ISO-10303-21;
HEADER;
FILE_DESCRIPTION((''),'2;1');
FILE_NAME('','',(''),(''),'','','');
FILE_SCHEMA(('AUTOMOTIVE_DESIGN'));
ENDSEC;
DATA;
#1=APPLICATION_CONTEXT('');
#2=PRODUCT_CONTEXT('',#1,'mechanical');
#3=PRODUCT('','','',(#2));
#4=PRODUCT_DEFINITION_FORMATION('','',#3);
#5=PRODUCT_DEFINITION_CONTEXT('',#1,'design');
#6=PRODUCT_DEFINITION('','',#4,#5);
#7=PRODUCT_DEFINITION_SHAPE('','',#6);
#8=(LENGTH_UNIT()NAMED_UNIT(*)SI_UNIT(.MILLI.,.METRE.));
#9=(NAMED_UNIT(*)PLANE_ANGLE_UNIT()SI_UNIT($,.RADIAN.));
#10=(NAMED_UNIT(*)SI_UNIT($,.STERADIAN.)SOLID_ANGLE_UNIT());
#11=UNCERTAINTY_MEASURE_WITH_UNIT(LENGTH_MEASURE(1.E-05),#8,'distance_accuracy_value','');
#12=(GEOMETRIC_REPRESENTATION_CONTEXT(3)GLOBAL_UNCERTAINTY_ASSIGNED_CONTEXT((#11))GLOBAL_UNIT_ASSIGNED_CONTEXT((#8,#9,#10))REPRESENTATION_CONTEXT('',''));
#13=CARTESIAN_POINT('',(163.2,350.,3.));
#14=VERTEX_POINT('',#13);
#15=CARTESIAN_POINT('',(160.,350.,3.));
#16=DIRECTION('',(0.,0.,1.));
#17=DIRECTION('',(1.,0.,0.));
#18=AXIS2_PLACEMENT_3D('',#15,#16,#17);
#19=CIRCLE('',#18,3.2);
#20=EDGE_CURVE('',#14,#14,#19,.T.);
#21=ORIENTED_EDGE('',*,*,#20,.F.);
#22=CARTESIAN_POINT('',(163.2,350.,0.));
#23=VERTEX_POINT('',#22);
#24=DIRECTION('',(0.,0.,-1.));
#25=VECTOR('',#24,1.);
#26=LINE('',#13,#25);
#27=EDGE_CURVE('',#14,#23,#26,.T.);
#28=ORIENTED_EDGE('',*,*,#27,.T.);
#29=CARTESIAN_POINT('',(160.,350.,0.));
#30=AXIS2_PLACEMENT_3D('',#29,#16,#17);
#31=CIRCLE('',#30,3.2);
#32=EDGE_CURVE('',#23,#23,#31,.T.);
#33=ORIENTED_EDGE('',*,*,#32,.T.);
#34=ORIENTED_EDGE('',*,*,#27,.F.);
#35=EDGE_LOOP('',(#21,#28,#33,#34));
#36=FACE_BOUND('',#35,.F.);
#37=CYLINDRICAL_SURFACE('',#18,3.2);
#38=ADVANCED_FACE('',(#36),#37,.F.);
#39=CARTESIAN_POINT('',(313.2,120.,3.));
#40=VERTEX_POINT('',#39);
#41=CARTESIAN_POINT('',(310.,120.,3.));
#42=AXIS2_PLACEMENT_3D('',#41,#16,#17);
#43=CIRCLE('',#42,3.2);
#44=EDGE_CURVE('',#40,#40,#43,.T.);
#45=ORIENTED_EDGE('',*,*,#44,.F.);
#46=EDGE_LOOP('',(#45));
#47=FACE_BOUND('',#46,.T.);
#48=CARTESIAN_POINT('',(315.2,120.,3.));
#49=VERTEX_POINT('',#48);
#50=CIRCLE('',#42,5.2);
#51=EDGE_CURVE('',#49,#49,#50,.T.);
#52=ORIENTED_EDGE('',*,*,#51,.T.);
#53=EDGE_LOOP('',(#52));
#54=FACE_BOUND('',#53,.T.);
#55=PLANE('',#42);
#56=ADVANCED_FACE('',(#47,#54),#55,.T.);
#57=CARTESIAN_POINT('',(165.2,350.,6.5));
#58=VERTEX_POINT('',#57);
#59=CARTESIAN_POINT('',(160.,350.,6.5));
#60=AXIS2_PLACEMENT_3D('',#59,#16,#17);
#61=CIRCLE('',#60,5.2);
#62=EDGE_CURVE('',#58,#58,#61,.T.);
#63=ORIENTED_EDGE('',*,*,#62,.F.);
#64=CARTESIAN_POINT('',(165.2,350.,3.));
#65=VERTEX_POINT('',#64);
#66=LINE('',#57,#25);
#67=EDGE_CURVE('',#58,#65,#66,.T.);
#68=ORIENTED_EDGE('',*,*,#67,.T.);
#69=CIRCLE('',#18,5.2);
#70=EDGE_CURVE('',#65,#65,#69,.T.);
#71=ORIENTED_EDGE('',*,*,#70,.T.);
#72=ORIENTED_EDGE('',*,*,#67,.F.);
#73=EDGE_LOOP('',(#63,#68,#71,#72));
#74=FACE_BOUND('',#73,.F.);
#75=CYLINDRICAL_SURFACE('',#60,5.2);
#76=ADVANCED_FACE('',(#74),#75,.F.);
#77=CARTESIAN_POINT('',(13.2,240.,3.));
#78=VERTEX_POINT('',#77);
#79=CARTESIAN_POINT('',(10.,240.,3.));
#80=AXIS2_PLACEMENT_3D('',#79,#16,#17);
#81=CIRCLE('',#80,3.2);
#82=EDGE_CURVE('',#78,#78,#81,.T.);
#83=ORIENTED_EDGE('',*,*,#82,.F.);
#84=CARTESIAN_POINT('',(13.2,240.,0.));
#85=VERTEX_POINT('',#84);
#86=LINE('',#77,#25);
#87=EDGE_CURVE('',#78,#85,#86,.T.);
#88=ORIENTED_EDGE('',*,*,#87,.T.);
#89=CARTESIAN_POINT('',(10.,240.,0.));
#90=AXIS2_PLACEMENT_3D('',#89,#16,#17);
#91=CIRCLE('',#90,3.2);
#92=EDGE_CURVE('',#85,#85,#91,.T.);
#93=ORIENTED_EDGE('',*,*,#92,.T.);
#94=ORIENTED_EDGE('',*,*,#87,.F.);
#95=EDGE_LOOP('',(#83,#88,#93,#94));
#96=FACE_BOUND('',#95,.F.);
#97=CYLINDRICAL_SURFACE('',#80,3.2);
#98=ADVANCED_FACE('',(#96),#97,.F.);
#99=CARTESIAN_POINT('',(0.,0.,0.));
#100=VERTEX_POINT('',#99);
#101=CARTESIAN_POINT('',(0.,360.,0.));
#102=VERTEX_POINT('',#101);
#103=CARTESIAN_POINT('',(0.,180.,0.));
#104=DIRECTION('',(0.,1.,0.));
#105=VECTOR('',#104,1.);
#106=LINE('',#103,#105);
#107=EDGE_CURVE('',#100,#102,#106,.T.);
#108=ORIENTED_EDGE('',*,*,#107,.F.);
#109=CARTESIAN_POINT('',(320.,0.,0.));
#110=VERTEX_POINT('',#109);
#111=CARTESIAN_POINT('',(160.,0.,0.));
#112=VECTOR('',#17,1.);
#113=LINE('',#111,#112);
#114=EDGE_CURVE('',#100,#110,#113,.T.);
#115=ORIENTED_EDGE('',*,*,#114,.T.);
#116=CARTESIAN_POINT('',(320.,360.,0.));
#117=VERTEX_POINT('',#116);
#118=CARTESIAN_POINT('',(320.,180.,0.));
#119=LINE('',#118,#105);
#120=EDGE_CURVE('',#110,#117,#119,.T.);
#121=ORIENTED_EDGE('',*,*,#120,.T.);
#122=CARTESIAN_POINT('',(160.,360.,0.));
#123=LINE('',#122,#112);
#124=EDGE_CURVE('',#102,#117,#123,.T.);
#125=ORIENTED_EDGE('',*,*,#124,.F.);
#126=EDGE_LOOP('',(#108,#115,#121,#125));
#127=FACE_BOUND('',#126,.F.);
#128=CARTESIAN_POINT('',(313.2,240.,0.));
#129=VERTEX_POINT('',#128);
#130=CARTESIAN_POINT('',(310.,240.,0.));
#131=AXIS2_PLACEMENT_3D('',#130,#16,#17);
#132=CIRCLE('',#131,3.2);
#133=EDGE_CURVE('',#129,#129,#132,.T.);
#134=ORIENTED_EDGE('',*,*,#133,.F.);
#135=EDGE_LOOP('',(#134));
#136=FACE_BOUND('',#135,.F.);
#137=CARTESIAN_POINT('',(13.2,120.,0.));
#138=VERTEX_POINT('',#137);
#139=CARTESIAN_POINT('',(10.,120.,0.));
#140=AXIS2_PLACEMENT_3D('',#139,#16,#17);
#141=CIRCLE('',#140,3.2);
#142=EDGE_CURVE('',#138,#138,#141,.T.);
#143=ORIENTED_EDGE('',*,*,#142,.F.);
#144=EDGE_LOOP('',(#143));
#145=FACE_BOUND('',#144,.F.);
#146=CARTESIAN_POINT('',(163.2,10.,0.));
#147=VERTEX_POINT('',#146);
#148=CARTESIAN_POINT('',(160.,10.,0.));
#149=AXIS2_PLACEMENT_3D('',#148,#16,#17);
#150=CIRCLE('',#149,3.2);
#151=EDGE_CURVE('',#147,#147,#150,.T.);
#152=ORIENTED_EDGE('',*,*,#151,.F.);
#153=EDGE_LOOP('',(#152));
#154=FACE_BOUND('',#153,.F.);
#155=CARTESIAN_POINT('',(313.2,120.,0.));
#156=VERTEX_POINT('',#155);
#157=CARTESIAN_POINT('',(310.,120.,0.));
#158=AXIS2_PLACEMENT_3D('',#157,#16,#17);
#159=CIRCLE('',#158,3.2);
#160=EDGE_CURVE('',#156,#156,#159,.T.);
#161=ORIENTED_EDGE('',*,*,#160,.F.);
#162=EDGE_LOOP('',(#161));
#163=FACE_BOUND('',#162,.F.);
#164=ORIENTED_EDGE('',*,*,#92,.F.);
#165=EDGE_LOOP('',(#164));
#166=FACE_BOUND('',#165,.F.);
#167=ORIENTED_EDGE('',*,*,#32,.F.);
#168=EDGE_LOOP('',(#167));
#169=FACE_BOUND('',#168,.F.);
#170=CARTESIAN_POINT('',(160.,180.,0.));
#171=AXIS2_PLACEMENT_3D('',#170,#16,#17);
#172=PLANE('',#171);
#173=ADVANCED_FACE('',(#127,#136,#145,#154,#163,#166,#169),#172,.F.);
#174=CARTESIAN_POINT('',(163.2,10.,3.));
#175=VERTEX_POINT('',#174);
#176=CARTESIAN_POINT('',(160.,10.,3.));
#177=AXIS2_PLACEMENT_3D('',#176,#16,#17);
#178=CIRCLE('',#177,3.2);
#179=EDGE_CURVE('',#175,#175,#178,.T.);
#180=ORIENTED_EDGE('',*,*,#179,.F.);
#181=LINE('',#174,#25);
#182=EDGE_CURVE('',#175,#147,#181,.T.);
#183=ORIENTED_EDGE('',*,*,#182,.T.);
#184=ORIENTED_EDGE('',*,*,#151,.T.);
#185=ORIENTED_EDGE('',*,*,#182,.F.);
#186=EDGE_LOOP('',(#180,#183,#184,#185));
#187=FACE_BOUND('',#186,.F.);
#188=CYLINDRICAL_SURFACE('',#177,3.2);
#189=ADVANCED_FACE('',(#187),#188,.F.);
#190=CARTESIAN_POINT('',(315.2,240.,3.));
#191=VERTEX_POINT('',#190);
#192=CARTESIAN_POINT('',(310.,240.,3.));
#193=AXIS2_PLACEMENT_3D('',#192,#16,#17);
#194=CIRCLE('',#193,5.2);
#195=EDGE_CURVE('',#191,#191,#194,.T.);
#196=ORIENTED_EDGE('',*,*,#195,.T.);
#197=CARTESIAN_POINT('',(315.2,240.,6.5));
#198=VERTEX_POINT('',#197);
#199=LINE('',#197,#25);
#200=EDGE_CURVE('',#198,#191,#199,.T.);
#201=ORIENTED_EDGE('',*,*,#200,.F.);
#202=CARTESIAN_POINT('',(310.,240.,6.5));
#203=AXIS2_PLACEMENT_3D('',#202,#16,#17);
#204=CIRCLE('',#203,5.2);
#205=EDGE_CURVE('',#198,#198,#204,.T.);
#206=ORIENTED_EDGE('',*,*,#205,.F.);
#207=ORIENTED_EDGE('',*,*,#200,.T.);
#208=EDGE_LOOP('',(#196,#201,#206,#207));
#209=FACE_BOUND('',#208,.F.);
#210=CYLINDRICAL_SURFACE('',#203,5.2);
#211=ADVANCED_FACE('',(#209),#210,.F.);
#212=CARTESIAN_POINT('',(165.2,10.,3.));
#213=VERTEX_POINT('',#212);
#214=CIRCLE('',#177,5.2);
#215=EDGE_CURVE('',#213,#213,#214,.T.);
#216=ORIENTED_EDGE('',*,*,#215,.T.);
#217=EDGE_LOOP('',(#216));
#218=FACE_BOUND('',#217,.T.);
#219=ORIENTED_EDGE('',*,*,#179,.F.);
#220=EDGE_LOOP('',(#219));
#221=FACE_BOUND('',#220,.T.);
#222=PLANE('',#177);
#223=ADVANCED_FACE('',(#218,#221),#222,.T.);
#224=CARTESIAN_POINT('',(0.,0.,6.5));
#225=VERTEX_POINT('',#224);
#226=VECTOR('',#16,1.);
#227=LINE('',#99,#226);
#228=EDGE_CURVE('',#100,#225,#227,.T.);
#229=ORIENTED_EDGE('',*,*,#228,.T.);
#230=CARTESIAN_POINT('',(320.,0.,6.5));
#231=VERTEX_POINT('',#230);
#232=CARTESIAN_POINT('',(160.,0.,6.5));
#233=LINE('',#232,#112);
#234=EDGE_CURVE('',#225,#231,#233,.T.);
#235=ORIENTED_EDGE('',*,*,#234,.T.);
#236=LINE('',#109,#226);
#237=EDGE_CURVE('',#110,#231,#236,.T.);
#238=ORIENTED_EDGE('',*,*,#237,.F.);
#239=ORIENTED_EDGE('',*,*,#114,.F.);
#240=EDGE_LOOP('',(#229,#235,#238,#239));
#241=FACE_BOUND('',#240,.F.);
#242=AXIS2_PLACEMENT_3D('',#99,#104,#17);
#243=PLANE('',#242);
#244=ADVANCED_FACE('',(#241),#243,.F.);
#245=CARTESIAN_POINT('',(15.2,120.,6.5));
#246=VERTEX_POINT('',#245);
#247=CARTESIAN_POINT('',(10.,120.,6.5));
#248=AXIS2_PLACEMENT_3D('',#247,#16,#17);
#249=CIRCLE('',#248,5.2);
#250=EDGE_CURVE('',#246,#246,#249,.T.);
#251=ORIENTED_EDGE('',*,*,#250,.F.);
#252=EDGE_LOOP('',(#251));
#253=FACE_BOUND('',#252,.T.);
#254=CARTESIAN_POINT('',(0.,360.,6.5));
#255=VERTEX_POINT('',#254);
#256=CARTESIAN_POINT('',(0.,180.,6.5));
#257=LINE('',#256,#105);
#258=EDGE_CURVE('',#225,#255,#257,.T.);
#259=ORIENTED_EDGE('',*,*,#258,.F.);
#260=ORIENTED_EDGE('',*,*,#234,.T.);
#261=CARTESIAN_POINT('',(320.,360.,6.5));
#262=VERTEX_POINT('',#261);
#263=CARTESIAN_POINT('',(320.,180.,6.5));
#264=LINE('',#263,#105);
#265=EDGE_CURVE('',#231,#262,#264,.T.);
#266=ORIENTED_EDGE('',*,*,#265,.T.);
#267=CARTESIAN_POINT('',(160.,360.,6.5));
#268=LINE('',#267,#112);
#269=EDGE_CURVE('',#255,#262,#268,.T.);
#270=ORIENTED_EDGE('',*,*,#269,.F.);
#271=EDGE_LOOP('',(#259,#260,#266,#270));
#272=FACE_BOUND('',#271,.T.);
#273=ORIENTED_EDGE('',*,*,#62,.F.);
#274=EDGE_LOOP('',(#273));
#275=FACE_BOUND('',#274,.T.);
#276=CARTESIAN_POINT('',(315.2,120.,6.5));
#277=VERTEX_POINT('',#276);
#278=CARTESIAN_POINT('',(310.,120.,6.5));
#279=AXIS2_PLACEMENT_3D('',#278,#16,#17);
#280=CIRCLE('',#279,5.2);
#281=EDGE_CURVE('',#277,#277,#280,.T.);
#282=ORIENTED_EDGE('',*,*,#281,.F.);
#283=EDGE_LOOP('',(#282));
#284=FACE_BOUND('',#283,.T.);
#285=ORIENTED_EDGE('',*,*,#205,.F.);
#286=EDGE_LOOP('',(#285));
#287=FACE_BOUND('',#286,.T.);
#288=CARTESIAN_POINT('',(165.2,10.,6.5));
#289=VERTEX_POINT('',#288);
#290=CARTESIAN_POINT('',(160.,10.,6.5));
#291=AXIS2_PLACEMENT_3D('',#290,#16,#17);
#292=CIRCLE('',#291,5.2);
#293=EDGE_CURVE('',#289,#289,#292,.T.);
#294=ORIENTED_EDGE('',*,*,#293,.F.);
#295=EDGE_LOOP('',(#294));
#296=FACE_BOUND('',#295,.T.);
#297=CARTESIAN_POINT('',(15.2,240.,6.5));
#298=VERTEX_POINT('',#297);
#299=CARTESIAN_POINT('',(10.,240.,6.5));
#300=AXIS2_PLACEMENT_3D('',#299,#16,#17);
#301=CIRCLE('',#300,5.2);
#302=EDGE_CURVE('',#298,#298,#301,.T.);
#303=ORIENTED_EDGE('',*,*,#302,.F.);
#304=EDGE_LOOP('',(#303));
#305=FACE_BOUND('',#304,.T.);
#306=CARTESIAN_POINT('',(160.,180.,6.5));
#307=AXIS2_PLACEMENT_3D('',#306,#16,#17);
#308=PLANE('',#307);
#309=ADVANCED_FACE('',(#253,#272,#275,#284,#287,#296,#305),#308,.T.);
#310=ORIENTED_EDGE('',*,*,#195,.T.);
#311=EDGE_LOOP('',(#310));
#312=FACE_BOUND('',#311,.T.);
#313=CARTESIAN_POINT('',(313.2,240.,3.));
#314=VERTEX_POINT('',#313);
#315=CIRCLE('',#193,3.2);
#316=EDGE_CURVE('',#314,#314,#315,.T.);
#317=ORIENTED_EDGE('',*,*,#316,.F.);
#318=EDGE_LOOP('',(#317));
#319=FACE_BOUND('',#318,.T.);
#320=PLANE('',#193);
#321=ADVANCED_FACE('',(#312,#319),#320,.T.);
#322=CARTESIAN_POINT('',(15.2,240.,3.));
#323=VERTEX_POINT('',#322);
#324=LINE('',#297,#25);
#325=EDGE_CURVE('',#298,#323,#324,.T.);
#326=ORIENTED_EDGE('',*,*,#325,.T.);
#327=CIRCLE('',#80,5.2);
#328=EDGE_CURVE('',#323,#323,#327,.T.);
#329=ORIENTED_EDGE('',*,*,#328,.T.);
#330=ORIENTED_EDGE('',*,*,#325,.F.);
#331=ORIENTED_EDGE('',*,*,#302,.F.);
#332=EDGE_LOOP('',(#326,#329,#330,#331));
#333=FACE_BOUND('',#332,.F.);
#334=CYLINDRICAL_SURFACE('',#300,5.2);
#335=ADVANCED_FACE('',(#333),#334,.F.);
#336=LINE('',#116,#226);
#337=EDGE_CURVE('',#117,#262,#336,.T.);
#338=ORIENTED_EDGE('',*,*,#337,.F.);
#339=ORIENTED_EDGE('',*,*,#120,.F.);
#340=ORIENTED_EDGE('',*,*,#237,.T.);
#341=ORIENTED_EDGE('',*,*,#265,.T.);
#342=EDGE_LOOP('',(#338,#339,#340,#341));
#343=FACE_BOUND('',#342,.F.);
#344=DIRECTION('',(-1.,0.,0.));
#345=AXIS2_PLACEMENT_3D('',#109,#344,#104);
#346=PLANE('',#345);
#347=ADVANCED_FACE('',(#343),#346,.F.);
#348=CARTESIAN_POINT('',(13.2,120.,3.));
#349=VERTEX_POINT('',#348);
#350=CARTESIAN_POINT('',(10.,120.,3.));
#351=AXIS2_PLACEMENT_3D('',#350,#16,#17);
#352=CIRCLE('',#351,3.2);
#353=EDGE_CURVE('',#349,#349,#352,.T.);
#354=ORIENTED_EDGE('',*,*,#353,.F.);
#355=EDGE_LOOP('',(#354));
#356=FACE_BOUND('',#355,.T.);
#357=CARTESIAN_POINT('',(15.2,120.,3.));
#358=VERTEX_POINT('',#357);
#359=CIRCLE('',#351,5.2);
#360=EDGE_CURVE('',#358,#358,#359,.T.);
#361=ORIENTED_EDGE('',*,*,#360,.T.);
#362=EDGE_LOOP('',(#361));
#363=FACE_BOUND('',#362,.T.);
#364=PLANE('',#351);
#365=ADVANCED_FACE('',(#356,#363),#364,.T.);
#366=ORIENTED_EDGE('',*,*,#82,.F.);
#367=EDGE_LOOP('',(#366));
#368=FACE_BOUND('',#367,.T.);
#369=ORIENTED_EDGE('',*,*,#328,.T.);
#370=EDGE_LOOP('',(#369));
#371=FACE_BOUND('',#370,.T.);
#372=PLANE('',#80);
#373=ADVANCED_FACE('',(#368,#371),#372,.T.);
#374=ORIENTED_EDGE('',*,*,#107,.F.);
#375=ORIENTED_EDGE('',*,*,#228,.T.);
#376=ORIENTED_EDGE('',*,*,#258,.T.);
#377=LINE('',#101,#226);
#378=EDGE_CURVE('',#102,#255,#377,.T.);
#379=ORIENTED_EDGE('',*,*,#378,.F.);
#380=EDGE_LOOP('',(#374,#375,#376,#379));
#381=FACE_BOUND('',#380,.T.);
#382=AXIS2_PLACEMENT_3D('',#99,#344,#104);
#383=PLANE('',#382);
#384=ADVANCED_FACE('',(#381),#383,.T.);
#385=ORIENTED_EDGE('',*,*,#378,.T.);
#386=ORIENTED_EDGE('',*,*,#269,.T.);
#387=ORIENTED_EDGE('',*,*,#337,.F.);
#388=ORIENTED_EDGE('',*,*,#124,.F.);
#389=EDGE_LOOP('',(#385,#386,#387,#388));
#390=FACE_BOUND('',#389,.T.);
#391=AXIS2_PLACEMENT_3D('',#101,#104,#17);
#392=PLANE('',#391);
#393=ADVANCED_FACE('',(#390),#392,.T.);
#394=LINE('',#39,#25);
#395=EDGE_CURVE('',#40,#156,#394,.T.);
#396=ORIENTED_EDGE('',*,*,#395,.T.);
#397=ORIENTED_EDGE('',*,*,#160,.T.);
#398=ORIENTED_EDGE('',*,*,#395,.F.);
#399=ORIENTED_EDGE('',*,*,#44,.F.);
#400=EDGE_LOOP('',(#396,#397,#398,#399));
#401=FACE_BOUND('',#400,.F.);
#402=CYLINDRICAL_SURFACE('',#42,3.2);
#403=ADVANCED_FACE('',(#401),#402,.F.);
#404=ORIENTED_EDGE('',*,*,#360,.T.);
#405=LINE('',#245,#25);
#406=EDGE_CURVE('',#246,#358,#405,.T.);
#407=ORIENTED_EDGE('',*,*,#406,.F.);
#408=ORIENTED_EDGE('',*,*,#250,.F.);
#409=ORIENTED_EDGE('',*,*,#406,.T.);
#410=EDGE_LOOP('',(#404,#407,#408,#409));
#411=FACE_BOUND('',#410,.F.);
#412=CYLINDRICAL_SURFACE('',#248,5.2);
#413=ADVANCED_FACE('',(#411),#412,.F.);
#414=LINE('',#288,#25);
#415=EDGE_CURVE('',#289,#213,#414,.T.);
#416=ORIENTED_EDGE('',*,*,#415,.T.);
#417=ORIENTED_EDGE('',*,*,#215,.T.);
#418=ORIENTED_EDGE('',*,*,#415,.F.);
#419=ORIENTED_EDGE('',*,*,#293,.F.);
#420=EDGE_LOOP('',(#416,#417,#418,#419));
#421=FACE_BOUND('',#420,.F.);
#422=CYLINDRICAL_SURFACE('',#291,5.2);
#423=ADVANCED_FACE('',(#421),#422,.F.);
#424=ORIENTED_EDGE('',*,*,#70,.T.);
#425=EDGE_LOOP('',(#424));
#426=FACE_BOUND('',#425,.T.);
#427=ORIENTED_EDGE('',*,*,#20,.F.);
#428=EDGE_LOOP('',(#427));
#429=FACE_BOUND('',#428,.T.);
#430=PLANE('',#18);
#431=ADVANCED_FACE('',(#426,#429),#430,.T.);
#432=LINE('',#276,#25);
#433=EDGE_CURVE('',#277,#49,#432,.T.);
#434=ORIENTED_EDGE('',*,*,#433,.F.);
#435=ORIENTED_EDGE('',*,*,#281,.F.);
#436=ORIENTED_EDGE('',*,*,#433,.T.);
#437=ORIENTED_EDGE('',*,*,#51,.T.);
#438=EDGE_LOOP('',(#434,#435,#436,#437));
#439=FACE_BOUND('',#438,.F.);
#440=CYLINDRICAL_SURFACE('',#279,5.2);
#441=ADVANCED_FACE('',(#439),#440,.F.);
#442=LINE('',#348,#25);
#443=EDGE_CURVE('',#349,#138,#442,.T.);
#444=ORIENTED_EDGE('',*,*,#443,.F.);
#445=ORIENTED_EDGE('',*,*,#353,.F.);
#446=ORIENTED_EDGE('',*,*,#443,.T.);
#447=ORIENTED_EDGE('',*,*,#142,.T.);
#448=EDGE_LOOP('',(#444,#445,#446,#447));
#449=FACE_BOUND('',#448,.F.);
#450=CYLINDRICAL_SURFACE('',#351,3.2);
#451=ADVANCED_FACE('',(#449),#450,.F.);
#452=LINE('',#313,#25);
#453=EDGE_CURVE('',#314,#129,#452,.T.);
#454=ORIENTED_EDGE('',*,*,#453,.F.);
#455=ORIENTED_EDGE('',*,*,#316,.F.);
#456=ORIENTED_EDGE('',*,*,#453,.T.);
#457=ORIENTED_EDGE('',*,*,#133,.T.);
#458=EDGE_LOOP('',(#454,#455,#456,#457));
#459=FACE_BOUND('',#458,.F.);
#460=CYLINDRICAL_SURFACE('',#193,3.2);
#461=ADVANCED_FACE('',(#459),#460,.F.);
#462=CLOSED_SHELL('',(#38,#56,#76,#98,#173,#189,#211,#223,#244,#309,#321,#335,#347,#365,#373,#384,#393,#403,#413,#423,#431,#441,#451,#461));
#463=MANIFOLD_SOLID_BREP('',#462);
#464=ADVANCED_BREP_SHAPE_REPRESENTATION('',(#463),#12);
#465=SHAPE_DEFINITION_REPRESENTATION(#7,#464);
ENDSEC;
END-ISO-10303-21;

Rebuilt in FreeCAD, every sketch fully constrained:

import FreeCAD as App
import Part
import Sketcher

doc = App.newDocument("Part")
body = doc.addObject("PartDesign::Body", "Body")

sketch1 = body.newObject("Sketcher::SketchObject", "Sketch")
sketch1.AttachmentSupport = (doc.getObject("XY_Plane"), [""])
sketch1.MapMode = "FlatFace"
sketch1.addGeometry([
    Part.LineSegment(App.Vector(0, 360, 0), App.Vector(0, 0, 0)),
    Part.LineSegment(App.Vector(0, 0, 0), App.Vector(320, 0, 0)),
    Part.LineSegment(App.Vector(320, 0, 0), App.Vector(320, 360, 0)),
    Part.LineSegment(App.Vector(320, 360, 0), App.Vector(0, 360, 0)),
], False)
sketch1.addConstraint([
    Sketcher.Constraint("Coincident", 0, 2, 1, 1),
    Sketcher.Constraint("Coincident", 1, 2, 2, 1),
    Sketcher.Constraint("Coincident", 2, 2, 3, 1),
    Sketcher.Constraint("Coincident", 3, 2, 0, 1),
    Sketcher.Constraint("Vertical", 0),
    Sketcher.Constraint("Horizontal", 1),
    Sketcher.Constraint("Vertical", 2),
    Sketcher.Constraint("Horizontal", 3),
    Sketcher.Constraint("Coincident", 0, 2, -1, 1),
    Sketcher.Constraint("DistanceX", 1, 1, 1, 2, 320.0),
    Sketcher.Constraint("DistanceY", 0, 2, 0, 1, 360.0),
])
pad1 = body.newObject("PartDesign::Pad", "Pad")
pad1.Profile = sketch1
pad1.Length = 6.5

sketch2 = body.newObject("Sketcher::SketchObject", "Sketch001")
sketch2.AttachmentSupport = (doc.getObject("XY_Plane"), [""])
sketch2.MapMode = "FlatFace"
sketch2.AttachmentOffset = App.Placement(App.Vector(0, 0, 6.5), App.Rotation())
sketch2.addGeometry([
    Part.Circle(App.Vector(160, 350, 0), App.Vector(0, 0, 1), 5.2),
    Part.Circle(App.Vector(310, 240, 0), App.Vector(0, 0, 1), 5.2),
    Part.Circle(App.Vector(310, 120, 0), App.Vector(0, 0, 1), 5.2),
    Part.Circle(App.Vector(160, 10, 0), App.Vector(0, 0, 1), 5.2),
    Part.Circle(App.Vector(10, 120, 0), App.Vector(0, 0, 1), 5.2),
    Part.Circle(App.Vector(10, 240, 0), App.Vector(0, 0, 1), 5.2),
], False)
sketch2.addConstraint([
    Sketcher.Constraint("Equal", 0, 1),
    Sketcher.Constraint("Equal", 1, 2),
    Sketcher.Constraint("Equal", 2, 3),
    Sketcher.Constraint("Equal", 3, 4),
    Sketcher.Constraint("Equal", 4, 5),
    Sketcher.Constraint("Horizontal", 2, 3, 4, 3),
    Sketcher.Constraint("Horizontal", 1, 3, 5, 3),
    Sketcher.Constraint("Vertical", 1, 3, 2, 3),
    Sketcher.Constraint("Vertical", 0, 3, 3, 3),
    Sketcher.Constraint("Vertical", 4, 3, 5, 3),
    Sketcher.Constraint("Diameter", 0, 10.4),
    Sketcher.Constraint("DistanceX", -1, 1, 0, 3, 160.0),
    Sketcher.Constraint("DistanceY", -1, 1, 0, 3, 350.0),
    Sketcher.Constraint("DistanceX", -1, 1, 1, 3, 310.0),
    Sketcher.Constraint("DistanceY", -1, 1, 1, 3, 240.0),
    Sketcher.Constraint("DistanceY", -1, 1, 2, 3, 120.0),
    Sketcher.Constraint("DistanceY", -1, 1, 3, 3, 10.0),
    Sketcher.Constraint("DistanceX", -1, 1, 4, 3, 10.0),
])
pocket1 = body.newObject("PartDesign::Pocket", "Pocket")
pocket1.Profile = sketch2
pocket1.Length = 3.5

sketch3 = body.newObject("Sketcher::SketchObject", "Sketch002")
sketch3.AttachmentSupport = (doc.getObject("XY_Plane"), [""])
sketch3.MapMode = "FlatFace"
sketch3.AttachmentOffset = App.Placement(App.Vector(0, 0, 3), App.Rotation())
sketch3.addGeometry([
    Part.Circle(App.Vector(160, 350, 0), App.Vector(0, 0, 1), 3.2),
    Part.Circle(App.Vector(10, 240, 0), App.Vector(0, 0, 1), 3.2),
    Part.Circle(App.Vector(10, 120, 0), App.Vector(0, 0, 1), 3.2),
    Part.Circle(App.Vector(160, 10, 0), App.Vector(0, 0, 1), 3.2),
    Part.Circle(App.Vector(310, 120, 0), App.Vector(0, 0, 1), 3.2),
    Part.Circle(App.Vector(310, 240, 0), App.Vector(0, 0, 1), 3.2),
], False)
sketch3.addConstraint([
    Sketcher.Constraint("Equal", 0, 1),
    Sketcher.Constraint("Equal", 1, 2),
    Sketcher.Constraint("Equal", 2, 3),
    Sketcher.Constraint("Equal", 3, 4),
    Sketcher.Constraint("Equal", 4, 5),
    Sketcher.Constraint("Horizontal", 2, 3, 4, 3),
    Sketcher.Constraint("Horizontal", 1, 3, 5, 3),
    Sketcher.Constraint("Vertical", 1, 3, 2, 3),
    Sketcher.Constraint("Vertical", 0, 3, 3, 3),
    Sketcher.Constraint("Vertical", 4, 3, 5, 3),
    Sketcher.Constraint("Diameter", 0, 6.4),
    Sketcher.Constraint("DistanceX", -1, 1, 0, 3, 160.0),
    Sketcher.Constraint("DistanceY", -1, 1, 0, 3, 350.0),
    Sketcher.Constraint("DistanceX", -1, 1, 1, 3, 10.0),
    Sketcher.Constraint("DistanceY", -1, 1, 1, 3, 240.0),
    Sketcher.Constraint("DistanceY", -1, 1, 2, 3, 120.0),
    Sketcher.Constraint("DistanceY", -1, 1, 3, 3, 10.0),
    Sketcher.Constraint("DistanceX", -1, 1, 4, 3, 310.0),
])
pocket2 = body.newObject("PartDesign::Pocket", "Pocket001")
pocket2.Profile = sketch3
pocket2.Length = 3

doc.recompute()
